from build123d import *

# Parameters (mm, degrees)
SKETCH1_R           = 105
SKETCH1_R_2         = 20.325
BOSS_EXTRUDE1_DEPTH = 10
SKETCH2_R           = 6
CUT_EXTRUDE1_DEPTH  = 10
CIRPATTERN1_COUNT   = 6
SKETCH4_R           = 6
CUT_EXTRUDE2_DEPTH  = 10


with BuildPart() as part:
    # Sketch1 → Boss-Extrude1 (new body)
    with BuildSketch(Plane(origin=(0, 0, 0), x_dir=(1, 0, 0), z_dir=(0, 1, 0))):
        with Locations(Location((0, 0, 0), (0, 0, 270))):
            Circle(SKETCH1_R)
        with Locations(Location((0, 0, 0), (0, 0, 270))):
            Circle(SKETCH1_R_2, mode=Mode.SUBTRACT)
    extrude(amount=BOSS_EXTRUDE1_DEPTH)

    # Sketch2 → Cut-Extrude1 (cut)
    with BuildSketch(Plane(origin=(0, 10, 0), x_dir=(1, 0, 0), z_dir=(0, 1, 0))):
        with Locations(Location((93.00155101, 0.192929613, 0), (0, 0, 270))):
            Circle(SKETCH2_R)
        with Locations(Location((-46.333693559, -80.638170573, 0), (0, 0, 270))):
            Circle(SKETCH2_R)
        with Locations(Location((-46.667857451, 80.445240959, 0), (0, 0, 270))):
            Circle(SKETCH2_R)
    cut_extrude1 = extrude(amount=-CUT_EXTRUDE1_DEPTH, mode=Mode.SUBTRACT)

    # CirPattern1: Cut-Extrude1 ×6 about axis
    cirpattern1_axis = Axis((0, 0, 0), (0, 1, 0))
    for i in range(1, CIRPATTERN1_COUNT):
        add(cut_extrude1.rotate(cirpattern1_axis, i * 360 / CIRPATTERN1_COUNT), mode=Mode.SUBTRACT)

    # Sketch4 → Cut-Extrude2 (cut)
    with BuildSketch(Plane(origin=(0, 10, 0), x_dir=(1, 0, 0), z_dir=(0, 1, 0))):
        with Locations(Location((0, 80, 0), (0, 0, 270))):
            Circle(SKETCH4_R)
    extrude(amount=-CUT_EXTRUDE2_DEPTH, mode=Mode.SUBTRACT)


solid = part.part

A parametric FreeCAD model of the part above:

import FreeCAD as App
import Part
import Sketcher

V = App.Vector

doc = App.newDocument("Part")
params = doc.addObject("Spreadsheet::Sheet", "Params")
for row, (alias, value) in enumerate([
    ("sketch1_diameter", "210 mm"),
    ("sketch1_diameter2", "40.65 mm"),
    ("pad1_length", "10 mm"),
    ("sketch2_diameter", "12 mm"),
    ("pocket1_length", "10 mm"),
    ("sketch3_diameter", "12 mm"),
    ("pocket2_length", "10 mm"),
], start=1):
    params.set(f"A{row}", alias)
    params.set(f"B{row}", "=" + value)
    params.setAlias(f"B{row}", alias)

body = doc.addObject("PartDesign::Body", "Body")

# Sketch on XZ plane
sketch1 = doc.addObject("Sketcher::SketchObject", "Sketch")
body.addObject(sketch1)
sketch1.AttachmentSupport = (doc.XZ_Plane, [""])
sketch1.MapMode = "FlatFace"
sketch1.addGeometry(Part.Circle(V(0, 0, 0), V(0, 0, 1), 105), False)
sketch1.addGeometry(Part.Circle(V(0, 0, 0), V(0, 0, 1), 20), False)
sketch1.addConstraint(Sketcher.Constraint("Coincident", 0, 3, -1, 1))
sketch1.addConstraint(Sketcher.Constraint("Coincident", 1, 3, -1, 1))
sketch1.addConstraint(Sketcher.Constraint("Diameter", 0, 210.0))
sketch1.addConstraint(Sketcher.Constraint("Diameter", 1, 40.65))
sketch1.setExpression("Constraints[2]", "Params.sketch1_diameter")
sketch1.setExpression("Constraints[3]", "Params.sketch1_diameter2")
pad1 = doc.addObject("PartDesign::Pad", "Pad")
body.addObject(pad1)
pad1.Profile = sketch1
pad1.setExpression("Length", "Params.pad1_length")
pad1.Reversed = True

# Sketch on XZ plane
sketch2 = doc.addObject("Sketcher::SketchObject", "Sketch001")
body.addObject(sketch2)
sketch2.AttachmentSupport = (doc.XZ_Plane, [""])
sketch2.MapMode = "FlatFace"
sketch2.AttachmentOffset = App.Placement(V(0, 0, -10), App.Rotation())
sketch2.addGeometry(Part.Circle(V(93, 0, 0), V(0, 0, 1), 6), False)
sketch2.addGeometry(Part.Circle(V(-46, 81, 0), V(0, 0, 1), 6), False)
sketch2.addGeometry(Part.Circle(V(-47, -80, 0), V(0, 0, 1), 6), False)
sketch2.addConstraint(Sketcher.Constraint("Equal", 0, 1))
sketch2.addConstraint(Sketcher.Constraint("Equal", 1, 2))
sketch2.addConstraint(Sketcher.Constraint("Diameter", 0, 12.0))
sketch2.addConstraint(Sketcher.Constraint("DistanceY", 0, 3, 1, 3, 80.8311))
sketch2.addConstraint(Sketcher.Constraint("DistanceX", -1, 1, 0, 3, 93.001551))
sketch2.addConstraint(Sketcher.Constraint("DistanceY", 0, 3, -1, 1, 0.19293))
sketch2.addConstraint(Sketcher.Constraint("DistanceY", 2, 3, -1, 1, 80.445241))
sketch2.addConstraint(Sketcher.Constraint("DistanceX", 2, 3, 0, 3, 139.669408))
sketch2.addConstraint(Sketcher.Constraint("DistanceX", 1, 3, -1, 1, 46.333694))
sketch2.setExpression("Constraints[2]", "Params.sketch2_diameter")
pocket1 = doc.addObject("PartDesign::Pocket", "Pocket")
body.addObject(pocket1)
pocket1.Profile = sketch2
pocket1.setExpression("Length", "Params.pocket1_length")
pocket1.Reversed = True
doc.recompute()

polarpattern = doc.addObject("PartDesign::PolarPattern", "PolarPattern")
body.addObject(polarpattern)
polarpattern.Originals = [pocket1]
polarpattern.Axis = (doc.Y_Axis, [""])
polarpattern.Angle = 360
polarpattern.Occurrences = 6
body.Tip = polarpattern

# Sketch on XZ plane
sketch3 = doc.addObject("Sketcher::SketchObject", "Sketch002")
body.addObject(sketch3)
sketch3.AttachmentSupport = (doc.XZ_Plane, [""])
sketch3.MapMode = "FlatFace"
sketch3.AttachmentOffset = App.Placement(V(0, 0, -10), App.Rotation())
sketch3.addGeometry(Part.Circle(V(0, -80, 0), V(0, 0, 1), 6), False)
sketch3.addConstraint(Sketcher.Constraint("PointOnObject", 0, 3, -2))
sketch3.addConstraint(Sketcher.Constraint("Diameter", 0, 12.0))
sketch3.addConstraint(Sketcher.Constraint("DistanceY", 0, 3, -1, 1, 80.0))
sketch3.setExpression("Constraints[1]", "Params.sketch3_diameter")
pocket2 = doc.addObject("PartDesign::Pocket", "Pocket001")
body.addObject(pocket2)
pocket2.Profile = sketch3
pocket2.setExpression("Length", "Params.pocket2_length")
pocket2.Reversed = True

doc.recompute()
